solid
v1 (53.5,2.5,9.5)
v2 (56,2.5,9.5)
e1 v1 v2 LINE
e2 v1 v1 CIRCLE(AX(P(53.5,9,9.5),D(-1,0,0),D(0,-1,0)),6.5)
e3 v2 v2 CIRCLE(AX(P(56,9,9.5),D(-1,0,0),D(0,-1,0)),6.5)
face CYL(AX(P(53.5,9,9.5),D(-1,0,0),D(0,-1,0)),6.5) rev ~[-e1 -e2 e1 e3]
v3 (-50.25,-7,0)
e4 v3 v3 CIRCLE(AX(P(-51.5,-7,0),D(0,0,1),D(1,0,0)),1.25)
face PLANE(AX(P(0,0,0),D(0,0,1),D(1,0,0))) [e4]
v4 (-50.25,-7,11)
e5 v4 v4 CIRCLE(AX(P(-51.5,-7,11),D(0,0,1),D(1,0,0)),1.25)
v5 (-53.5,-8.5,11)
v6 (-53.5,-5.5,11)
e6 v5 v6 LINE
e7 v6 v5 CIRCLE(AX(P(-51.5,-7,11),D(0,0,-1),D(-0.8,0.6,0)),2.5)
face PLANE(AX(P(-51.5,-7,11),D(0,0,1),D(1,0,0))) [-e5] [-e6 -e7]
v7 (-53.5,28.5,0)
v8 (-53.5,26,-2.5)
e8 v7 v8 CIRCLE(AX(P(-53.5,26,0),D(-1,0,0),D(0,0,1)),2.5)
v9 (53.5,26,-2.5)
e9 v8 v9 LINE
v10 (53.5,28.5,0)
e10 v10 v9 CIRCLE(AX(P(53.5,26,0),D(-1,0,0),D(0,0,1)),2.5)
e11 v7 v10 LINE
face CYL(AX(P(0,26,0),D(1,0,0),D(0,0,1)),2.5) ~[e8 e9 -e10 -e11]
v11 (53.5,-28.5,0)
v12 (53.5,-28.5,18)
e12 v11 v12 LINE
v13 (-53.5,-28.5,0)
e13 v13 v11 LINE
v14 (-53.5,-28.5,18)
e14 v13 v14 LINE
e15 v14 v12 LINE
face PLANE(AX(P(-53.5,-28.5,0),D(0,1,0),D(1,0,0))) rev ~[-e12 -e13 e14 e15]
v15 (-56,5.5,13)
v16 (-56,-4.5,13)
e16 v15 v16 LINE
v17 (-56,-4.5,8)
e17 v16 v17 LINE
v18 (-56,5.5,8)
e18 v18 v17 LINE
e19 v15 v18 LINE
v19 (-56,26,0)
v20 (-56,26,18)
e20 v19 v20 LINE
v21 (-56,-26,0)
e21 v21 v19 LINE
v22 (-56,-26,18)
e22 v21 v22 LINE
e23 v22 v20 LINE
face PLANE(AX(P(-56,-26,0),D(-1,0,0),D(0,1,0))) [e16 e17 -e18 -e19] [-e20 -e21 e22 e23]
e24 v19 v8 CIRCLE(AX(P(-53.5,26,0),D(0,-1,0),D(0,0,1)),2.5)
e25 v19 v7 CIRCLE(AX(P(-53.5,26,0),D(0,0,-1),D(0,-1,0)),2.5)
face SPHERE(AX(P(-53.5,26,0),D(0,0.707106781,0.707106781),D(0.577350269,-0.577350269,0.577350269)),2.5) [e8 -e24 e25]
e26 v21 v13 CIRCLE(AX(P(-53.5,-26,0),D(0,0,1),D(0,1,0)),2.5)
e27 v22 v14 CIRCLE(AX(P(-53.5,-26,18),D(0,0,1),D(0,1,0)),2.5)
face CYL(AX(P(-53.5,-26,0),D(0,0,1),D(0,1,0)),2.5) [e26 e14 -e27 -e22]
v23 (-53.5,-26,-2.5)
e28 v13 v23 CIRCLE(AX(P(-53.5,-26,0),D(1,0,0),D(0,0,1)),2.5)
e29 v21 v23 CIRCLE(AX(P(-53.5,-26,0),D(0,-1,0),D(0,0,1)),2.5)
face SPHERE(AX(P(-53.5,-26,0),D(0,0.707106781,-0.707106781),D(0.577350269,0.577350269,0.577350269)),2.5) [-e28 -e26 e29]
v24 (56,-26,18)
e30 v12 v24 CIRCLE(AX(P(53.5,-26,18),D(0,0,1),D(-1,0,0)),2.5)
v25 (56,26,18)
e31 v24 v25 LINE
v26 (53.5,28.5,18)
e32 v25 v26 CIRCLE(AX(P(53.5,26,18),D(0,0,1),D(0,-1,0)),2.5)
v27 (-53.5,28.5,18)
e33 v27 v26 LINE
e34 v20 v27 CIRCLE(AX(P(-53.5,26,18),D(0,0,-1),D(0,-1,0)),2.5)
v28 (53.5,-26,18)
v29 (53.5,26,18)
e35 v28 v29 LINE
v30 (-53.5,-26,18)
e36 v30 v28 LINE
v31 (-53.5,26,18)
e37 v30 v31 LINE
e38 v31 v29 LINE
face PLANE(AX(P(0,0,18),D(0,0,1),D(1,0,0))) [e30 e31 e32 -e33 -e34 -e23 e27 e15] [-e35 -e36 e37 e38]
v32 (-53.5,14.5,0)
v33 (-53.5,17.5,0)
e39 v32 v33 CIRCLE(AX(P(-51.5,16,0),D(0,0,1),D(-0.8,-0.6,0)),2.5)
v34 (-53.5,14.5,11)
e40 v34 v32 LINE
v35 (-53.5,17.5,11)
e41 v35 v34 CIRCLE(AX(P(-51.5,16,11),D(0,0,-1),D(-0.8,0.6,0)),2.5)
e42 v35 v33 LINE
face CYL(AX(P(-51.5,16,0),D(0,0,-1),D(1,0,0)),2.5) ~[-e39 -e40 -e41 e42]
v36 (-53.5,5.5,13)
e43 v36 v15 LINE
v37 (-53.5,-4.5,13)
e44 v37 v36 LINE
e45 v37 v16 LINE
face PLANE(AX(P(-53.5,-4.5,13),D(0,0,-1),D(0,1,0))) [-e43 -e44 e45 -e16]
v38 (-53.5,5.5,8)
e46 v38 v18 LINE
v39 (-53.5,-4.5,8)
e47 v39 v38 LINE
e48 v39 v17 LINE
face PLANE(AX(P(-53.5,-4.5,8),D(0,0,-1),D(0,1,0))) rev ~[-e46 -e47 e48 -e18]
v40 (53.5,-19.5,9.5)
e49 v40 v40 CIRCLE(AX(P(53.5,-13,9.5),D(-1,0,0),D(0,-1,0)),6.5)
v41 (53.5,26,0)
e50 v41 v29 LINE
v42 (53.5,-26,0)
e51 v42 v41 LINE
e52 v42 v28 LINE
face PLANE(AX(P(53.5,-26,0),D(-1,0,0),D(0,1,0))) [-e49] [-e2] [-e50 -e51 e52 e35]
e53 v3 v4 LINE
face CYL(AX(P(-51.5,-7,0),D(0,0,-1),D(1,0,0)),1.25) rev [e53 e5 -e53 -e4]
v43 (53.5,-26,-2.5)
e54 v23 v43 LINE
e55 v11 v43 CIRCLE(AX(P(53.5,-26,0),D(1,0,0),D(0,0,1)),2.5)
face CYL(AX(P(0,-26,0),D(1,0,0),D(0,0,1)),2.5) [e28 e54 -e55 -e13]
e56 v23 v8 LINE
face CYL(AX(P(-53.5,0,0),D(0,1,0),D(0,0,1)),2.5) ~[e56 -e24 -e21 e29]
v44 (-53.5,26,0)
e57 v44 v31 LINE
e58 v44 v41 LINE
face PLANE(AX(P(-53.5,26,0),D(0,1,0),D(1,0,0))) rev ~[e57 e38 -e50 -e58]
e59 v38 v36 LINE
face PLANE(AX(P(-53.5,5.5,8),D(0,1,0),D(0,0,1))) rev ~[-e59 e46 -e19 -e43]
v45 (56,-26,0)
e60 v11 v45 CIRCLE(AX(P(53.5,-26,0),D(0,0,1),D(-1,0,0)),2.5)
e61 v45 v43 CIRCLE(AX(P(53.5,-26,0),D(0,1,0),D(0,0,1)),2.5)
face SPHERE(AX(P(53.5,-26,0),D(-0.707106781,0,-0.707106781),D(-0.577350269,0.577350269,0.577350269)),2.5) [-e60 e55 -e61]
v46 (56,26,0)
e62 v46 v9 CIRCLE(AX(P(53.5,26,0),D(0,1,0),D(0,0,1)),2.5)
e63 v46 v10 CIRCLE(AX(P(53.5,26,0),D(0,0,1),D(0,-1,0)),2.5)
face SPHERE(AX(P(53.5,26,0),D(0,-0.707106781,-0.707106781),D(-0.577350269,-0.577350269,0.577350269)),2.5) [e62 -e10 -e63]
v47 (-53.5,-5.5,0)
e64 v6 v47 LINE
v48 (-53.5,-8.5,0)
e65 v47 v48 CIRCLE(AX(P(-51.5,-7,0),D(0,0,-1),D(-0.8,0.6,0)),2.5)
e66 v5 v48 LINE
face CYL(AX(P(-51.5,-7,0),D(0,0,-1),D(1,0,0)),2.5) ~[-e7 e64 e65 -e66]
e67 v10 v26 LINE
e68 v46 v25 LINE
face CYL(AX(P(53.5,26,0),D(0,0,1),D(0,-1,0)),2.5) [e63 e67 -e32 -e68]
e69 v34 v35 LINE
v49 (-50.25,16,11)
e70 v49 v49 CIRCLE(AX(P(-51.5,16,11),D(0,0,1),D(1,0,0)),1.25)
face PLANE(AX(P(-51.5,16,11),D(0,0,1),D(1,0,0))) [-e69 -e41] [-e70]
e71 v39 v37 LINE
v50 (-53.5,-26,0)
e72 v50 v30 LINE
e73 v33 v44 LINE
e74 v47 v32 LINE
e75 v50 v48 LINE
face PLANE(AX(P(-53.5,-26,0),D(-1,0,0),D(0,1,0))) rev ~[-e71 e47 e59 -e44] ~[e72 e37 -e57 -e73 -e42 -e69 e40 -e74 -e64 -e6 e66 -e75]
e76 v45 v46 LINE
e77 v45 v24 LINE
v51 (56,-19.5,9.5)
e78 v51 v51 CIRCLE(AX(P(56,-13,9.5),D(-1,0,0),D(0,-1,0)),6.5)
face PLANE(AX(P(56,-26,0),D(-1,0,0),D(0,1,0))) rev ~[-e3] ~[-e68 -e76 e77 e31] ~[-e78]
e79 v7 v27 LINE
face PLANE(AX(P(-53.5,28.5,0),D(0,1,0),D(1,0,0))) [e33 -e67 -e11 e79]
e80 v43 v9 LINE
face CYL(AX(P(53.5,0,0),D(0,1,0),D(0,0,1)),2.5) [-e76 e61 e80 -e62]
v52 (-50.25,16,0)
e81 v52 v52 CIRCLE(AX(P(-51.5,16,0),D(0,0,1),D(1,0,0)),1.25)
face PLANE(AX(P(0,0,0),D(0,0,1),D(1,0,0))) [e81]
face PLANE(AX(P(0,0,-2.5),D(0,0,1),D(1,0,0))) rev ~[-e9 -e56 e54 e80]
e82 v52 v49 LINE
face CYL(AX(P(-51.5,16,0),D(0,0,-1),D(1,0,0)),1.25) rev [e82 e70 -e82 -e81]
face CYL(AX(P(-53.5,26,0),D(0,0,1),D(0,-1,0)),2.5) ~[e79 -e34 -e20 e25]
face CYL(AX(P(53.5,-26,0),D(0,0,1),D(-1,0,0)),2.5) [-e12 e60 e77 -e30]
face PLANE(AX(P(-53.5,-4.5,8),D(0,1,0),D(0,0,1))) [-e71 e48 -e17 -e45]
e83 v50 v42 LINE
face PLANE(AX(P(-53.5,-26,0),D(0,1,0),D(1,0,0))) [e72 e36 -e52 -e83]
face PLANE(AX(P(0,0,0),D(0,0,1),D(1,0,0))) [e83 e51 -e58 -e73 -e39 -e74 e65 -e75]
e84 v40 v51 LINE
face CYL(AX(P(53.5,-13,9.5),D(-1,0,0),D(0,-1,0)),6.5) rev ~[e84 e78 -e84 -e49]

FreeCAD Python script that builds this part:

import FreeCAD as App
import Part
import Sketcher
from FreeCAD import Vector


def faces_at(feature, points):
    """Names of the faces that lie closest to the given points."""
    faces = feature.Shape.Faces
    near = lambda p: min(range(len(faces)), key=lambda i: faces[i].distToShape(Part.Vertex(*p))[0])
    return sorted({f"Face{near(p) + 1}" for p in points})


def add_polygon(sketch, points):
    """Adds a closed chain of lines whose ends are joined by coincident constraints."""
    first, n = sketch.GeometryCount, len(points)
    for a, b in zip(points, points[1:] + points[:1]):
        sketch.addGeometry(Part.LineSegment(App.Vector(*a, 0), App.Vector(*b, 0)), False)
    for i in range(n):
        sketch.addConstraint(Sketcher.Constraint("Coincident", first + i, 2, first + (i + 1) % n, 1))

doc = App.newDocument("Part")
body = doc.addObject("PartDesign::Body", "Body")

sketch1 = doc.addObject("Sketcher::SketchObject", "Sketch")
body.addObject(sketch1)
sketch1.AttachmentSupport = (doc.XY_Plane, [""])
sketch1.MapMode = "FlatFace"
add_polygon(sketch1, [(-54, 26), (-54, -26), (54, -26), (54, 26)])
sketch1.addConstraint([
    Sketcher.Constraint("Vertical", 0),
    Sketcher.Constraint("Horizontal", 1),
    Sketcher.Constraint("Vertical", 2),
    Sketcher.Constraint("Horizontal", 3),
    Sketcher.Constraint("Symmetric", 0, 2, 2, 2, -1, 1),
    Sketcher.Constraint("DistanceX", 1, 1, 1, 2, 107.0),
    Sketcher.Constraint("DistanceY", 0, 2, 0, 1, 52.0),
])
pad1 = doc.addObject("PartDesign::Pad", "Pad")
body.addObject(pad1)
pad1.Profile = sketch1
pad1.Length = 18
doc.recompute()

thickness = doc.addObject("PartDesign::Thickness", "Thickness")
body.addObject(thickness)
thickness.Base = (pad1, faces_at(pad1, [(0, 0, 18)]))
thickness.Value = 2.5
thickness.Reversed = False
thickness.Join = "Arc"

sketch2 = doc.addObject("Sketcher::SketchObject", "Sketch001")
body.addObject(sketch2)
sketch2.AttachmentSupport = (doc.YZ_Plane, [""])
sketch2.MapMode = "FlatFace"
sketch2.AttachmentOffset = App.Placement(Vector(0, 0, 53.5), App.Rotation())
sketch2.addGeometry([
    Part.Circle(Vector(9, 10, 0), Vector(0, 0, 1), 6),
    Part.Circle(Vector(-13, 10, 0), Vector(0, 0, 1), 6),
], False)
sketch2.addConstraint([
    Sketcher.Constraint("Equal", 0, 1),
    Sketcher.Constraint("Horizontal", 0, 3, 1, 3),
    Sketcher.Constraint("Diameter", 0, 13.0),
    Sketcher.Constraint("DistanceX", -1, 1, 0, 3, 9.0),
    Sketcher.Constraint("DistanceX", 1, 3, -1, 1, 13.0),
    Sketcher.Constraint("DistanceY", -1, 1, 0, 3, 9.5),
])
pocket1 = doc.addObject("PartDesign::Pocket", "Pocket")
body.addObject(pocket1)
pocket1.Profile = sketch2
pocket1.Length = 5
pocket1.Reversed = True

sketch3 = doc.addObject("Sketcher::SketchObject", "Sketch002")
body.addObject(sketch3)
sketch3.AttachmentSupport = (doc.YZ_Plane, [""])
sketch3.MapMode = "FlatFace"
sketch3.AttachmentOffset = App.Placement(Vector(0, 0, -53.5), App.Rotation())
add_polygon(sketch3, [(-4, 13), (-4, 8), (6, 8), (6, 13)])
sketch3.addConstraint([
    Sketcher.Constraint("Vertical", 0),
    Sketcher.Constraint("Horizontal", 1),
    Sketcher.Constraint("Vertical", 2),
    Sketcher.Constraint("Horizontal", 3),
    Sketcher.Constraint("DistanceX", 1, 1, 1, 2, 10.0),
    Sketcher.Constraint("DistanceY", 0, 2, 0, 1, 5.0),
    Sketcher.Constraint("DistanceY", -1, 1, 0, 2, 8.0),
    Sketcher.Constraint("DistanceX", 0, 2, -1, 1, 4.5),
])
pocket2 = doc.addObject("PartDesign::Pocket", "Pocket001")
body.addObject(pocket2)
pocket2.Profile = sketch3
pocket2.Length = 5

sketch4 = doc.addObject("Sketcher::SketchObject", "Sketch003")
body.addObject(sketch4)
sketch4.AttachmentSupport = (doc.XY_Plane, [""])
sketch4.MapMode = "FlatFace"
sketch4.addGeometry([
    Part.Circle(Vector(-51.5, 16, 0), Vector(0, 0, 1), 2.5),
    Part.Circle(Vector(-51.5, 16, 0), Vector(0, 0, 1), 1.2),
    Part.Circle(Vector(-51.5, -7, 0), Vector(0, 0, 1), 2.5),
    Part.Circle(Vector(-51.5, -7, 0), Vector(0, 0, 1), 1.2),
], False)
sketch4.addConstraint([
    Sketcher.Constraint("Coincident", 1, 3, 0, 3),
    Sketcher.Constraint("Coincident", 3, 3, 2, 3),
    Sketcher.Constraint("Equal", 0, 2),
    Sketcher.Constraint("Equal", 1, 3),
    Sketcher.Constraint("Vertical", 1, 3, 2, 3),
    Sketcher.Constraint("Diameter", 0, 5.0),
    Sketcher.Constraint("Diameter", 1, 2.5),
    Sketcher.Constraint("DistanceY", -1, 1, 0, 3, 16.0),
    Sketcher.Constraint("DistanceY", 2, 3, -1, 1, 7.0),
    Sketcher.Constraint("DistanceX", 0, 3, -1, 1, 51.5),
])
pad2 = doc.addObject("PartDesign::Pad", "Pad001")
body.addObject(pad2)
pad2.Profile = sketch4
pad2.Length = 11

doc.recompute()
